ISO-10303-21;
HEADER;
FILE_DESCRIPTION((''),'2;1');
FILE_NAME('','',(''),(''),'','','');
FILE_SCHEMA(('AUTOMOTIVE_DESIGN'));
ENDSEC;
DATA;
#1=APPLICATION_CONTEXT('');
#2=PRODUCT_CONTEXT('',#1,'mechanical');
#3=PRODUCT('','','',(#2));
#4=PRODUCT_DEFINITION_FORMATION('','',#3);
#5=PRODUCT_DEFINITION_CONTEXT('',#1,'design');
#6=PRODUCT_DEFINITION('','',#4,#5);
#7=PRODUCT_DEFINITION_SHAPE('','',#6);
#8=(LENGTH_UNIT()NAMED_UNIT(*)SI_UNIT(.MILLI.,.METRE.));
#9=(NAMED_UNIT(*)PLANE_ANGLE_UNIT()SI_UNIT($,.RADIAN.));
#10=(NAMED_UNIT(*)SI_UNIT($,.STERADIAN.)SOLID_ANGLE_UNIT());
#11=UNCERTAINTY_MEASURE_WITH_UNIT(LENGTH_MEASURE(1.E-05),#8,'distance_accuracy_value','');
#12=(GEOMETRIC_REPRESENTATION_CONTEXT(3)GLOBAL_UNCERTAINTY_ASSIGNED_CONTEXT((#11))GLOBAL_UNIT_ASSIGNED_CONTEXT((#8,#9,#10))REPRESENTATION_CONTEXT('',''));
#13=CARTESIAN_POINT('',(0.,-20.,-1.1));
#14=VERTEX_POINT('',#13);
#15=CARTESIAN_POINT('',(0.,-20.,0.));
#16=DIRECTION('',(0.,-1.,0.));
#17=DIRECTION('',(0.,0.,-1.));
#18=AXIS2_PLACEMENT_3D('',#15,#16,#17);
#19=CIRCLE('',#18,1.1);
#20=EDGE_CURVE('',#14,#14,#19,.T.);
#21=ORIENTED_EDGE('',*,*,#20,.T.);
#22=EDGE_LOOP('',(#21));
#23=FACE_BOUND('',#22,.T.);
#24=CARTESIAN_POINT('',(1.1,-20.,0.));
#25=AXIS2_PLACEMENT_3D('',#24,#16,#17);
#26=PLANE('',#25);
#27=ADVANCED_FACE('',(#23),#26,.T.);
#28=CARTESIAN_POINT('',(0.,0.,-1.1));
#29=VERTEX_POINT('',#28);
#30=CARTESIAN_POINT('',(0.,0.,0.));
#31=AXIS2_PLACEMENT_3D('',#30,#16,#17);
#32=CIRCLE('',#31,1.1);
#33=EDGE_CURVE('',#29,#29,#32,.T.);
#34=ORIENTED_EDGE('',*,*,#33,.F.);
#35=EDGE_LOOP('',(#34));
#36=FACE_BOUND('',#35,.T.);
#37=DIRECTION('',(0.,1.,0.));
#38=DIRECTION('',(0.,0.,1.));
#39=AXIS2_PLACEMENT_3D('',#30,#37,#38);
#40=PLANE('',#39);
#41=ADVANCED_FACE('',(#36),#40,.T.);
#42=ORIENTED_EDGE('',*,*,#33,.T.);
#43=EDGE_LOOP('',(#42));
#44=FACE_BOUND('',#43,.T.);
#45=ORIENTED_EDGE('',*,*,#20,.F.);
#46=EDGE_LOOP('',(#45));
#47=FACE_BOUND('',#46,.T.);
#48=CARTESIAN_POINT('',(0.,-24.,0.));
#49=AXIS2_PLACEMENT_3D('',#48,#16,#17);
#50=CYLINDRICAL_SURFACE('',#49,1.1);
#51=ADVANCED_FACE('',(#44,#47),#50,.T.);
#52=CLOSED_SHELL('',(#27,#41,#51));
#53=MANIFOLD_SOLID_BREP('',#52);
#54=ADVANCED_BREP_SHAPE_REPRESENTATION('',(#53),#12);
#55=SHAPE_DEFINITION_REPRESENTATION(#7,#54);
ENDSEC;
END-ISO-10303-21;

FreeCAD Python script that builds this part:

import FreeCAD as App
import Part
import Sketcher
from FreeCAD import Vector

doc = App.newDocument("Part")
body = doc.addObject("PartDesign::Body", "Body")

# Sketch on XY plane
sketch1 = body.newObject("Sketcher::SketchObject", "Sketch")
sketch1.AttachmentSupport = (doc.getObject("XY_Plane"), [""])
sketch1.MapMode = "FlatFace"
sketch1.addGeometry([
    Part.LineSegment(Vector(0, 0, 0), Vector(0, -20, 0)),
    Part.LineSegment(Vector(0, -20, 0), Vector(1.1, -20, 0)),
    Part.LineSegment(Vector(1.1, -20, 0), Vector(1.1, 0, 0)),
    Part.LineSegment(Vector(1.1, 0, 0), Vector(0, 0, 0)),
], False)
sketch1.addConstraint([
    Sketcher.Constraint("Coincident", 0, 2, 1, 1),
    Sketcher.Constraint("Coincident", 1, 2, 2, 1),
    Sketcher.Constraint("Coincident", 2, 2, 3, 1),
    Sketcher.Constraint("Coincident", 3, 2, 0, 1),
    Sketcher.Constraint("Vertical", 0),
    Sketcher.Constraint("Horizontal", 1),
    Sketcher.Constraint("Vertical", 2),
    Sketcher.Constraint("Horizontal", 3),
    Sketcher.Constraint("Coincident", 3, 2, -1, 1),
    Sketcher.Constraint("DistanceY", 0, 2, 0, 1, 20.0),
    Sketcher.Constraint("DistanceX", 1, 1, 1, 2, 1.1),
])
revolution = body.newObject("PartDesign::Revolution", "Revolution")
revolution.Profile = sketch1
revolution.ReferenceAxis = (sketch1, ["V_Axis"])
revolution.Angle = 360

doc.recompute()
